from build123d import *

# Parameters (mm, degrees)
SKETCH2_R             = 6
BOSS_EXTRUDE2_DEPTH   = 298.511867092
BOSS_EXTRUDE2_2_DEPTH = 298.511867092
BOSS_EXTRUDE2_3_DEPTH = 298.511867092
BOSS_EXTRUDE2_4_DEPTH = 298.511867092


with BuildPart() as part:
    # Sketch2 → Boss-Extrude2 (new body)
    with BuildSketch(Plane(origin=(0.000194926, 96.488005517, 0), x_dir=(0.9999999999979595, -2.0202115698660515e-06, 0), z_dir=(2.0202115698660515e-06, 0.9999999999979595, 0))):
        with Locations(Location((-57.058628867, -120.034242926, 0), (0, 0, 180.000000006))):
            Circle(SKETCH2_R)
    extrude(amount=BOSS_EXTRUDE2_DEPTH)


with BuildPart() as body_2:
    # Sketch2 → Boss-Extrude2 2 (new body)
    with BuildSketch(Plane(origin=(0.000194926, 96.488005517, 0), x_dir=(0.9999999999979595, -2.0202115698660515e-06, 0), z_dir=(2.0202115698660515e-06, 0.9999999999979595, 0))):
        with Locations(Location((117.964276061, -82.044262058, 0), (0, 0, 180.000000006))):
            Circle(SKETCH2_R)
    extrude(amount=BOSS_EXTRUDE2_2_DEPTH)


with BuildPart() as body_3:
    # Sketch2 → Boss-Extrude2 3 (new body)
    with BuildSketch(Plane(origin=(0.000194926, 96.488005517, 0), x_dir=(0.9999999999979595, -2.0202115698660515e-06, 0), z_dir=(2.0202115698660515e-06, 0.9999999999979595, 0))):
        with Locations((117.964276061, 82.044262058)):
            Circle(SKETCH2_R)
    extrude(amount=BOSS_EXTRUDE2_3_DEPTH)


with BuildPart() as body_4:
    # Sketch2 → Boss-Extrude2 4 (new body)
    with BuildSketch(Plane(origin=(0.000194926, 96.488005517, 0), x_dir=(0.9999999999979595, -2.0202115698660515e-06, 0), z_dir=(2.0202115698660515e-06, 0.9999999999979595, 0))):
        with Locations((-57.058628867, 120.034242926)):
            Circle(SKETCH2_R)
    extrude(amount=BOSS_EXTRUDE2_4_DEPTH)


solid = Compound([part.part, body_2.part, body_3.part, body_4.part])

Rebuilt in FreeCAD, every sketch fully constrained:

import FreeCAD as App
import Part
import Sketcher

V = App.Vector
Q = App.Units.Quantity

doc = App.newDocument("Part")
params = doc.addObject("Spreadsheet::Sheet", "Params")
for row, (alias, value) in enumerate([
    ("sketch1_diameter", "12 mm"),
    ("pad1_length", "298.511867 mm"),
    ("sketch2_diameter", "12 mm"),
    ("pad2_length", "298.511867 mm"),
    ("sketch3_diameter", "12 mm"),
    ("pad3_length", "298.511867 mm"),
    ("sketch4_diameter", "12 mm"),
    ("pad4_length", "298.511867 mm"),
], start=1):
    params.set(f"A{row}", alias)
    params.set(f"B{row}", "=" + value)
    params.setAlias(f"B{row}", alias)

body = doc.addObject("PartDesign::Body", "Body")

# Sketch on XZ plane
sketch1 = doc.addObject("Sketcher::SketchObject", "Sketch")
body.addObject(sketch1)
sketch1.AttachmentSupport = (doc.XZ_Plane, [""])
sketch1.MapMode = "FlatFace"
sketch1.AttachmentOffset = App.Placement(V(0, 0, -96.488006), App.Rotation())
sketch1.addGeometry(Part.Circle(V(-57, 120, 0), V(0, 0, 1), 6), False)
sketch1.addConstraint([
    Sketcher.Constraint("Diameter", 0, Q("12 mm")),
    Sketcher.Constraint("DistanceX", 0, 3, -1, 1, Q("57.058434 mm")),
    Sketcher.Constraint("DistanceY", -1, 1, 0, 3, Q("120.034243 mm")),
])
sketch1.setExpression("Constraints[0]", "Params.sketch1_diameter")
pad1 = doc.addObject("PartDesign::Pad", "Pad")
body.addObject(pad1)
pad1.Profile = sketch1
pad1.setExpression("Length", "Params.pad1_length")
pad1.Reversed = True
body2 = doc.addObject("PartDesign::Body", "Body001")

# Sketch on XZ plane
sketch2 = doc.addObject("Sketcher::SketchObject", "Sketch001")
body2.addObject(sketch2)
sketch2.AttachmentSupport = (doc.getObject("XZ_Plane001"), [""])
sketch2.MapMode = "FlatFace"
sketch2.AttachmentOffset = App.Placement(V(0, 0, -96.488006), App.Rotation())
sketch2.addGeometry(Part.Circle(V(118, 82, 0), V(0, 0, 1), 6), False)
sketch2.addConstraint([
    Sketcher.Constraint("Diameter", 0, Q("12 mm")),
    Sketcher.Constraint("DistanceX", -1, 1, 0, 3, Q("117.964471 mm")),
    Sketcher.Constraint("DistanceY", -1, 1, 0, 3, Q("82.044262 mm")),
])
sketch2.setExpression("Constraints[0]", "Params.sketch2_diameter")
pad2 = doc.addObject("PartDesign::Pad", "Pad001")
body2.addObject(pad2)
pad2.Profile = sketch2
pad2.setExpression("Length", "Params.pad2_length")
pad2.Reversed = True
body3 = doc.addObject("PartDesign::Body", "Body002")

# Sketch on XZ plane
sketch3 = doc.addObject("Sketcher::SketchObject", "Sketch002")
body3.addObject(sketch3)
sketch3.AttachmentSupport = (doc.getObject("XZ_Plane002"), [""])
sketch3.MapMode = "FlatFace"
sketch3.AttachmentOffset = App.Placement(V(0, 0, -96.488006), App.Rotation())
sketch3.addGeometry(Part.Circle(V(118, -82, 0), V(0, 0, 1), 6), False)
sketch3.addConstraint([
    Sketcher.Constraint("Diameter", 0, Q("12 mm")),
    Sketcher.Constraint("DistanceX", -1, 1, 0, 3, Q("117.964471 mm")),
    Sketcher.Constraint("DistanceY", 0, 3, -1, 1, Q("82.044262 mm")),
])
sketch3.setExpression("Constraints[0]", "Params.sketch3_diameter")
pad3 = doc.addObject("PartDesign::Pad", "Pad002")
body3.addObject(pad3)
pad3.Profile = sketch3
pad3.setExpression("Length", "Params.pad3_length")
pad3.Reversed = True
body4 = doc.addObject("PartDesign::Body", "Body003")

# Sketch on XZ plane
sketch4 = doc.addObject("Sketcher::SketchObject", "Sketch003")
body4.addObject(sketch4)
sketch4.AttachmentSupport = (doc.getObject("XZ_Plane003"), [""])
sketch4.MapMode = "FlatFace"
sketch4.AttachmentOffset = App.Placement(V(0, 0, -96.488006), App.Rotation())
sketch4.addGeometry(Part.Circle(V(-57, -120, 0), V(0, 0, 1), 6), False)
sketch4.addConstraint([
    Sketcher.Constraint("Diameter", 0, Q("12 mm")),
    Sketcher.Constraint("DistanceX", 0, 3, -1, 1, Q("57.058434 mm")),
    Sketcher.Constraint("DistanceY", 0, 3, -1, 1, Q("120.034243 mm")),
])
sketch4.setExpression("Constraints[0]", "Params.sketch4_diameter")
pad4 = doc.addObject("PartDesign::Pad", "Pad003")
body4.addObject(pad4)
pad4.Profile = sketch4
pad4.setExpression("Length", "Params.pad4_length")
pad4.Reversed = True

doc.recompute()
